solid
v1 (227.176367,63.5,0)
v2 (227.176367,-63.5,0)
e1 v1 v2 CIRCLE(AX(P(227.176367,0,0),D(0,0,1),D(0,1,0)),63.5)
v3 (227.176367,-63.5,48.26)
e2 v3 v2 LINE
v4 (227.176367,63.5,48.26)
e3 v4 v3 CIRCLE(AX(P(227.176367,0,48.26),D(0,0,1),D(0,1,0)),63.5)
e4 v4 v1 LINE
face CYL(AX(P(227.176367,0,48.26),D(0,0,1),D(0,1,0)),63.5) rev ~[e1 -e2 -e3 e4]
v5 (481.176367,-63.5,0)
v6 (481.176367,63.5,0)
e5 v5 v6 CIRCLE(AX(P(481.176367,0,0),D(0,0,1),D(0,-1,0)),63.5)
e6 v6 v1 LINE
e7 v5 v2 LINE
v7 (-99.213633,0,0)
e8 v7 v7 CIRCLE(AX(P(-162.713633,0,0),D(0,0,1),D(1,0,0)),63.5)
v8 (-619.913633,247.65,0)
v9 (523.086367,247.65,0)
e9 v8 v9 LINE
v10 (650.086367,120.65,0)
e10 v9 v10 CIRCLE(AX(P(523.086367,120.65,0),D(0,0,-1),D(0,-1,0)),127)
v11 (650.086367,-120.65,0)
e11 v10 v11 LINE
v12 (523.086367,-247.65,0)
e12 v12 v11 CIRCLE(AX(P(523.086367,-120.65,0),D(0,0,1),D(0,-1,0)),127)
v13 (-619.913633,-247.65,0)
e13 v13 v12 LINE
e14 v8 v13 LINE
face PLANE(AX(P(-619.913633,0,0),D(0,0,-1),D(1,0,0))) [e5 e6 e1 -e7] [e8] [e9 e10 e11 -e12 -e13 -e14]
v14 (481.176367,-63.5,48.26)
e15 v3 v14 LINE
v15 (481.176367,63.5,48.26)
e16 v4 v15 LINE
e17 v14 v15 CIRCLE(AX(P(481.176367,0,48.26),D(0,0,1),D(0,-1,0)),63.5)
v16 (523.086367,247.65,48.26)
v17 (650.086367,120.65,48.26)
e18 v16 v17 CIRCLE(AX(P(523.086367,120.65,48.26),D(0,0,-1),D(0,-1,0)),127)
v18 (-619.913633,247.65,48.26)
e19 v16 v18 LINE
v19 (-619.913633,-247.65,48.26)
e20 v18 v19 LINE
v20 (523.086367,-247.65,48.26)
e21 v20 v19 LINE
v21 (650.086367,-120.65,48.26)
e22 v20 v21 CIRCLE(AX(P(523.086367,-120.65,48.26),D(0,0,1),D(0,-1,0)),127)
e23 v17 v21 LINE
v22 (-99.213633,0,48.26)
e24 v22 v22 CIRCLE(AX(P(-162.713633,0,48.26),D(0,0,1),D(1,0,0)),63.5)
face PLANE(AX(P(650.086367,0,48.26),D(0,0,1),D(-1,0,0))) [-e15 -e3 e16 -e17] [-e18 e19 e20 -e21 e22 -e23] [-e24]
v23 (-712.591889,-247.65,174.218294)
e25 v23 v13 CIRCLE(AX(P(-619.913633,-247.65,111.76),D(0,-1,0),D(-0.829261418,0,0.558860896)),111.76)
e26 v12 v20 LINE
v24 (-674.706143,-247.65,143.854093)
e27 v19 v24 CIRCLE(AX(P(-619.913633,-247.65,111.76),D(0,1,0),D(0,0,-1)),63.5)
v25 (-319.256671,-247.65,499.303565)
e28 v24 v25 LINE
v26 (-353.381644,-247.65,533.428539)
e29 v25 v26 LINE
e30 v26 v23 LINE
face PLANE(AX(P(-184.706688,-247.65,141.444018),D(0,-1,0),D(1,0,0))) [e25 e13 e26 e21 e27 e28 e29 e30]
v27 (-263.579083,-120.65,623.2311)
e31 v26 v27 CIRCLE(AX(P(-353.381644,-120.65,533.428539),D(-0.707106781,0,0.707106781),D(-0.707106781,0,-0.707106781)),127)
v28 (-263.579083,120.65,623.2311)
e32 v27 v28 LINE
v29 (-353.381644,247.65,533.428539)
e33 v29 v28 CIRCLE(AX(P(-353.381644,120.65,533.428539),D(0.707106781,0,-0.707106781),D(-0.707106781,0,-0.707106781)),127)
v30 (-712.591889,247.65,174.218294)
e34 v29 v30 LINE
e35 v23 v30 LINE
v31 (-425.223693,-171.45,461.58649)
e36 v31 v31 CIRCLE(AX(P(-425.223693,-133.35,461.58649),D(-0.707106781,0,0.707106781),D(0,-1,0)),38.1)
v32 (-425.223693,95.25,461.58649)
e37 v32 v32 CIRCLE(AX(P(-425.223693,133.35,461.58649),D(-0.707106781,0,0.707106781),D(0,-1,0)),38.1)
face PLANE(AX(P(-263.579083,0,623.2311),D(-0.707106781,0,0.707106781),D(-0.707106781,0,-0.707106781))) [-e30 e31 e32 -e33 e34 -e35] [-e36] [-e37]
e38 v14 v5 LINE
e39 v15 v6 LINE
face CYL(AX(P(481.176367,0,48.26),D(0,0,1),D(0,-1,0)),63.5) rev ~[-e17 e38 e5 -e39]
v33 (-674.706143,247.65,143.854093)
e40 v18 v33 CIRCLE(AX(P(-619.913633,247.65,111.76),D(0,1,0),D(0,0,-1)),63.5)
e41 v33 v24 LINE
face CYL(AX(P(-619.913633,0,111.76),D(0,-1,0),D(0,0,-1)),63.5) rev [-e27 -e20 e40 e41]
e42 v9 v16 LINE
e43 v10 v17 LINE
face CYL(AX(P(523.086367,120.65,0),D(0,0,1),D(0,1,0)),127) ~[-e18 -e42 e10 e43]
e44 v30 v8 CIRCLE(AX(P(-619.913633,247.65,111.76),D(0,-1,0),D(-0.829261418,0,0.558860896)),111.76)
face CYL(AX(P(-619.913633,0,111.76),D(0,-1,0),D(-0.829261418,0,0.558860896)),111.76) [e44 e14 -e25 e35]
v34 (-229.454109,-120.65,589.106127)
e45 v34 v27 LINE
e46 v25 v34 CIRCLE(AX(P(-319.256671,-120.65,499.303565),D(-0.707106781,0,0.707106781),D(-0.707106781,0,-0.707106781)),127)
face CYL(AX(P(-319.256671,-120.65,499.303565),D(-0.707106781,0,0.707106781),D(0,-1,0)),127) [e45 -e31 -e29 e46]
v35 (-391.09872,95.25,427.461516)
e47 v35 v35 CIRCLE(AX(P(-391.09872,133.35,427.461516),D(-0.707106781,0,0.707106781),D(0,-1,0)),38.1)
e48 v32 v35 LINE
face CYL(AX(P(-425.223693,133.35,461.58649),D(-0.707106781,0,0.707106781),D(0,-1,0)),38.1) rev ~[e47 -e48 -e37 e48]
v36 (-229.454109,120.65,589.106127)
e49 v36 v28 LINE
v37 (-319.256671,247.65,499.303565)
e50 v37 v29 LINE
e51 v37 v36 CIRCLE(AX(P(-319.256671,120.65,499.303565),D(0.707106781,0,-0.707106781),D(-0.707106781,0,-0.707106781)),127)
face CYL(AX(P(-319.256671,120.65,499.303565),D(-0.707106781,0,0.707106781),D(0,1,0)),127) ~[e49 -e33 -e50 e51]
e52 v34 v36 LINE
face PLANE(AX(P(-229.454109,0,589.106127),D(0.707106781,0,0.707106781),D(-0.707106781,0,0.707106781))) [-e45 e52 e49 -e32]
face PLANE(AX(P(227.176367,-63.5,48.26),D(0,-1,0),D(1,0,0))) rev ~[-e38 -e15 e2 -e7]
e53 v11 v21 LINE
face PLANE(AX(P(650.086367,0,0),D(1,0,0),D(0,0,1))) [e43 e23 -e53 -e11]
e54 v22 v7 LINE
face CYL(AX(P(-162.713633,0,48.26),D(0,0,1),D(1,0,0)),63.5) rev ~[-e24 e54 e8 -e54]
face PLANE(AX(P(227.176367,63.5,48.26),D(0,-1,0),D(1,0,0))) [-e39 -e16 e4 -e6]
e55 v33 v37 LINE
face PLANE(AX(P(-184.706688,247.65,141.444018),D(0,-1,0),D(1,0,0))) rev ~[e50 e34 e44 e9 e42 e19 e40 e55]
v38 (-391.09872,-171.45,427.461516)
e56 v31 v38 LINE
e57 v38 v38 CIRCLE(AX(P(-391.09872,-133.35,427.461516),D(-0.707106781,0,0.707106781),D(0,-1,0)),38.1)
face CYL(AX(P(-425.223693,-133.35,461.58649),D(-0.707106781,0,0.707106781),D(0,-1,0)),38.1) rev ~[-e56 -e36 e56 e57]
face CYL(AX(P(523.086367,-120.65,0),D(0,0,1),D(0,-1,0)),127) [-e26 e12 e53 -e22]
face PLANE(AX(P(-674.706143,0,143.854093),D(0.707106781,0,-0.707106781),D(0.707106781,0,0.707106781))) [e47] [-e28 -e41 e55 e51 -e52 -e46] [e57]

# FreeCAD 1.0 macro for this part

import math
import FreeCAD as App
import Part
import Sketcher
from FreeCAD import Vector
Q = App.Units.Quantity


def edges_at(feature, points):
    """Names of the edges that pass closest to the given points."""
    edges = feature.Shape.Edges
    near = lambda p: min(range(len(edges)), key=lambda i: edges[i].distToShape(Part.Vertex(*p))[0])
    return sorted({f"Edge{near(p) + 1}" for p in points})

doc = App.newDocument("Part")
params = doc.addObject("Spreadsheet::Sheet", "Params")
for row, (alias, value) in enumerate([
    ("sketch1_radius", "4.4 in"),
    ("sketch1_radius2", "2.5 in"),
    ("sketch1_width", "50 in"),
    ("sketch1_length", "25 in"),
    ("sketch1_length2", "1.9 in"),
    ("pad1_length", "19.5 in"),
    ("sketch2_diameter", "5 in"),
    ("sketch3_radius", "2.5 in"),
    ("sketch3_width", "10 in"),
    ("sketch4_diameter", "3 in"),
    ("pocket3_length", "8.6 in"),
    ("sketch5_diameter", "3 in"),
    ("pocket4_length", "8.6 in"),
    ("fillet_radius", "5 in"),
], start=1):
    params.set(f"A{row}", alias)
    params.set(f"B{row}", "=" + value)
    params.setAlias(f"B{row}", alias)

body = doc.addObject("PartDesign::Body", "Body")

# Sketch on XZ plane
sketch1 = body.newObject("Sketcher::SketchObject", "Sketch")
sketch1.AttachmentSupport = (doc.getObject("XZ_Plane"), [""])
sketch1.MapMode = "FlatFace"
sketch1.addGeometry([
    Part.ArcOfCircle(Part.Circle(Vector(-619.913633, 111.76, 0), Vector(0, 0, 1), 111.76), math.radians(146.022942), math.radians(270)),  # 0
    Part.LineSegment(Vector(-619.913633, 0, 0), Vector(650.086367, 0, 0)),  # 1
    Part.LineSegment(Vector(650.086367, 0, 0), Vector(650.086367, 48.26, 0)),  # 2
    Part.LineSegment(Vector(650.086367, 48.26, 0), Vector(-619.913633, 48.26, 0)),  # 3
    Part.ArcOfCircle(Part.Circle(Vector(-619.913633, 111.76, 0), Vector(0, 0, 1), 63.5), math.radians(149.640844), math.radians(270)),  # 4
    Part.LineSegment(Vector(-674.706143, 143.854093, 0), Vector(-229.454109, 589.106127, 0)),  # 5
    Part.LineSegment(Vector(-229.454109, 589.106127, 0), Vector(-263.579083, 623.2311, 0)),  # 6
    Part.LineSegment(Vector(-263.579083, 623.2311, 0), Vector(-712.591889, 174.218294, 0)),  # 7
], False)
sketch1.addConstraint([
    Sketcher.Constraint("Tangent", 0, 2, 1, 1),
    Sketcher.Constraint("Coincident", 1, 2, 2, 1),
    Sketcher.Constraint("Coincident", 2, 2, 3, 1),
    Sketcher.Constraint("Tangent", 3, 2, 4, 2),
    Sketcher.Constraint("Coincident", 4, 1, 5, 1),
    Sketcher.Constraint("Coincident", 5, 2, 6, 1),
    Sketcher.Constraint("Coincident", 6, 2, 7, 1),
    Sketcher.Constraint("Coincident", 7, 2, 0, 1),
    Sketcher.Constraint("Horizontal", 1),
    Sketcher.Constraint("Vertical", 2),
    Sketcher.Constraint("Horizontal", 3),
    Sketcher.Constraint("Coincident", 4, 3, 0, 3),
    Sketcher.Constraint("PointOnObject", 0, 2, -1),
    Sketcher.Constraint("Perpendicular", 5, 6),
    Sketcher.Constraint("Perpendicular", 6, 7),
    Sketcher.Constraint("Radius", 0, Q("4.4 in")),
    Sketcher.Constraint("Radius", 4, Q("2.5 in")),
    Sketcher.Constraint("DistanceX", 1, 1, 1, 2, Q("50 in")),
    Sketcher.Constraint("Distance", 7, Q("25 in")),
    Sketcher.Constraint("Angle", 5, Q("45 deg")),
    Sketcher.Constraint("Distance", 6, Q("1.9 in")),
    Sketcher.Constraint("DistanceY", -1, 1, 6, 2, Q("623.2311 mm")),
    Sketcher.Constraint("DistanceX", 5, 2, -1, 1, Q("229.454109 mm")),
])
sketch1.setExpression("Constraints[15]", "Params.sketch1_radius")
sketch1.setExpression("Constraints[16]", "Params.sketch1_radius2")
sketch1.setExpression("Constraints[17]", "Params.sketch1_width")
sketch1.setExpression("Constraints[18]", "Params.sketch1_length")
sketch1.setExpression("Constraints[20]", "Params.sketch1_length2")
pad1 = body.newObject("PartDesign::Pad", "Pad")
pad1.Profile = sketch1
pad1.setExpression("Length", "Params.pad1_length")
pad1.Midplane = True

# Sketch on XY plane
sketch2 = body.newObject("Sketcher::SketchObject", "Sketch001")
sketch2.AttachmentSupport = (doc.getObject("XY_Plane"), [""])
sketch2.MapMode = "FlatFace"
sketch2.AttachmentOffset = App.Placement(Vector(0, 0, 1.9 * 25.4), App.Rotation())
sketch2.addGeometry(Part.Circle(Vector(-162.713633, 0, 0), Vector(0, 0, 1), 63.5), False)
sketch2.addConstraint([
    Sketcher.Constraint("PointOnObject", 0, 3, -1),
    Sketcher.Constraint("Diameter", 0, Q("5 in")),
    Sketcher.Constraint("DistanceX", 0, 3, -1, 1, Q("162.713633 mm")),
])
sketch2.setExpression("Constraints[1]", "Params.sketch2_diameter")
pocket1 = body.newObject("PartDesign::Pocket", "Pocket")
pocket1.Profile = sketch2
pocket1.Type = "ThroughAll"

# Sketch on XY plane
sketch3 = body.newObject("Sketcher::SketchObject", "Sketch002")
sketch3.AttachmentSupport = (doc.getObject("XY_Plane"), [""])
sketch3.MapMode = "FlatFace"
sketch3.AttachmentOffset = App.Placement(Vector(0, 0, 1.9 * 25.4), App.Rotation())
sketch3.addGeometry([
    Part.LineSegment(Vector(227.176367, -63.5, 0), Vector(481.176367, -63.5, 0)),
    Part.ArcOfCircle(Part.Circle(Vector(481.176367, 0, 0), Vector(0, 0, 1), 63.5), math.radians(-90), math.radians(90)),
    Part.LineSegment(Vector(481.176367, 63.5, 0), Vector(227.176367, 63.5, 0)),
    Part.ArcOfCircle(Part.Circle(Vector(227.176367, 0, 0), Vector(0, 0, 1), 63.5), math.radians(90), math.radians(270)),
], False)
sketch3.addConstraint([
    Sketcher.Constraint("Tangent", 0, 2, 1, 1),
    Sketcher.Constraint("Tangent", 1, 2, 2, 1),
    Sketcher.Constraint("Tangent", 2, 2, 3, 1),
    Sketcher.Constraint("Tangent", 3, 2, 0, 1),
    Sketcher.Constraint("Horizontal", 0),
    Sketcher.Constraint("Horizontal", 2),
    Sketcher.Constraint("PointOnObject", 1, 3, -1),
    Sketcher.Constraint("Radius", 1, Q("2.5 in")),
    Sketcher.Constraint("DistanceX", 0, 1, 0, 2, Q("10 in")),
    Sketcher.Constraint("DistanceX", -1, 1, 1, 3, Q("481.176367 mm")),
])
sketch3.setExpression("Constraints[7]", "Params.sketch3_radius")
sketch3.setExpression("Constraints[8]", "Params.sketch3_width")
pocket2 = body.newObject("PartDesign::Pocket", "Pocket001")
pocket2.Profile = sketch3
pocket2.Type = "ThroughAll"

# Sketch on an angled plane
sketch4 = body.newObject("Sketcher::SketchObject", "Sketch003")
sketch4.Placement = App.Placement(Vector(-443.405091, 0, 443.405091), App.Rotation(Vector(0, -1, 0), Vector(0.707106781, 0, 0.707106781), Vector(-0.707106781, 0, 0.707106781), "ZXY"))
sketch4.addGeometry(Part.Circle(Vector(133.35, 25.71238, 0), Vector(0, 0, 1), 38.1), False)
sketch4.addConstraint([
    Sketcher.Constraint("Diameter", 0, Q("3 in")),
    Sketcher.Constraint("DistanceX", -1, 1, 0, 3, Q("5.25 in")),
    Sketcher.Constraint("DistanceY", -1, 1, 0, 3, Q("25.71238 mm")),
])
sketch4.setExpression("Constraints[0]", "Params.sketch4_diameter")
pocket3 = body.newObject("PartDesign::Pocket", "Pocket002")
pocket3.Profile = sketch4
pocket3.setExpression("Length", "Params.pocket3_length")

# Sketch on an angled plane
sketch5 = body.newObject("Sketcher::SketchObject", "Sketch004")
sketch5.Placement = App.Placement(Vector(-443.405091, 0, 443.405091), App.Rotation(Vector(0, -1, 0), Vector(0.707106781, 0, 0.707106781), Vector(-0.707106781, 0, 0.707106781), "ZXY"))
sketch5.addGeometry(Part.Circle(Vector(-133.35, 25.71238, 0), Vector(0, 0, 1), 38.1), False)
sketch5.addConstraint([
    Sketcher.Constraint("Diameter", 0, Q("3 in")),
    Sketcher.Constraint("DistanceX", 0, 3, -1, 1, Q("5.25 in")),
    Sketcher.Constraint("DistanceY", -1, 1, 0, 3, Q("25.71238 mm")),
])
sketch5.setExpression("Constraints[0]", "Params.sketch5_diameter")
pocket4 = body.newObject("PartDesign::Pocket", "Pocket003")
pocket4.Profile = sketch5
pocket4.setExpression("Length", "Params.pocket4_length")
doc.recompute()

fillet = body.newObject("PartDesign::Fillet", "Fillet")
fillet.Base = (pocket4, edges_at(pocket4, [
    (650.086, -247.65, 24.13),
    (650.086, 247.65, 24.13),
    (-246.517, -247.65, 606.169),
    (-246.517, 247.65, 606.169),
]))
fillet.setExpression("Radius", "Params.fillet_radius")

doc.recompute()
